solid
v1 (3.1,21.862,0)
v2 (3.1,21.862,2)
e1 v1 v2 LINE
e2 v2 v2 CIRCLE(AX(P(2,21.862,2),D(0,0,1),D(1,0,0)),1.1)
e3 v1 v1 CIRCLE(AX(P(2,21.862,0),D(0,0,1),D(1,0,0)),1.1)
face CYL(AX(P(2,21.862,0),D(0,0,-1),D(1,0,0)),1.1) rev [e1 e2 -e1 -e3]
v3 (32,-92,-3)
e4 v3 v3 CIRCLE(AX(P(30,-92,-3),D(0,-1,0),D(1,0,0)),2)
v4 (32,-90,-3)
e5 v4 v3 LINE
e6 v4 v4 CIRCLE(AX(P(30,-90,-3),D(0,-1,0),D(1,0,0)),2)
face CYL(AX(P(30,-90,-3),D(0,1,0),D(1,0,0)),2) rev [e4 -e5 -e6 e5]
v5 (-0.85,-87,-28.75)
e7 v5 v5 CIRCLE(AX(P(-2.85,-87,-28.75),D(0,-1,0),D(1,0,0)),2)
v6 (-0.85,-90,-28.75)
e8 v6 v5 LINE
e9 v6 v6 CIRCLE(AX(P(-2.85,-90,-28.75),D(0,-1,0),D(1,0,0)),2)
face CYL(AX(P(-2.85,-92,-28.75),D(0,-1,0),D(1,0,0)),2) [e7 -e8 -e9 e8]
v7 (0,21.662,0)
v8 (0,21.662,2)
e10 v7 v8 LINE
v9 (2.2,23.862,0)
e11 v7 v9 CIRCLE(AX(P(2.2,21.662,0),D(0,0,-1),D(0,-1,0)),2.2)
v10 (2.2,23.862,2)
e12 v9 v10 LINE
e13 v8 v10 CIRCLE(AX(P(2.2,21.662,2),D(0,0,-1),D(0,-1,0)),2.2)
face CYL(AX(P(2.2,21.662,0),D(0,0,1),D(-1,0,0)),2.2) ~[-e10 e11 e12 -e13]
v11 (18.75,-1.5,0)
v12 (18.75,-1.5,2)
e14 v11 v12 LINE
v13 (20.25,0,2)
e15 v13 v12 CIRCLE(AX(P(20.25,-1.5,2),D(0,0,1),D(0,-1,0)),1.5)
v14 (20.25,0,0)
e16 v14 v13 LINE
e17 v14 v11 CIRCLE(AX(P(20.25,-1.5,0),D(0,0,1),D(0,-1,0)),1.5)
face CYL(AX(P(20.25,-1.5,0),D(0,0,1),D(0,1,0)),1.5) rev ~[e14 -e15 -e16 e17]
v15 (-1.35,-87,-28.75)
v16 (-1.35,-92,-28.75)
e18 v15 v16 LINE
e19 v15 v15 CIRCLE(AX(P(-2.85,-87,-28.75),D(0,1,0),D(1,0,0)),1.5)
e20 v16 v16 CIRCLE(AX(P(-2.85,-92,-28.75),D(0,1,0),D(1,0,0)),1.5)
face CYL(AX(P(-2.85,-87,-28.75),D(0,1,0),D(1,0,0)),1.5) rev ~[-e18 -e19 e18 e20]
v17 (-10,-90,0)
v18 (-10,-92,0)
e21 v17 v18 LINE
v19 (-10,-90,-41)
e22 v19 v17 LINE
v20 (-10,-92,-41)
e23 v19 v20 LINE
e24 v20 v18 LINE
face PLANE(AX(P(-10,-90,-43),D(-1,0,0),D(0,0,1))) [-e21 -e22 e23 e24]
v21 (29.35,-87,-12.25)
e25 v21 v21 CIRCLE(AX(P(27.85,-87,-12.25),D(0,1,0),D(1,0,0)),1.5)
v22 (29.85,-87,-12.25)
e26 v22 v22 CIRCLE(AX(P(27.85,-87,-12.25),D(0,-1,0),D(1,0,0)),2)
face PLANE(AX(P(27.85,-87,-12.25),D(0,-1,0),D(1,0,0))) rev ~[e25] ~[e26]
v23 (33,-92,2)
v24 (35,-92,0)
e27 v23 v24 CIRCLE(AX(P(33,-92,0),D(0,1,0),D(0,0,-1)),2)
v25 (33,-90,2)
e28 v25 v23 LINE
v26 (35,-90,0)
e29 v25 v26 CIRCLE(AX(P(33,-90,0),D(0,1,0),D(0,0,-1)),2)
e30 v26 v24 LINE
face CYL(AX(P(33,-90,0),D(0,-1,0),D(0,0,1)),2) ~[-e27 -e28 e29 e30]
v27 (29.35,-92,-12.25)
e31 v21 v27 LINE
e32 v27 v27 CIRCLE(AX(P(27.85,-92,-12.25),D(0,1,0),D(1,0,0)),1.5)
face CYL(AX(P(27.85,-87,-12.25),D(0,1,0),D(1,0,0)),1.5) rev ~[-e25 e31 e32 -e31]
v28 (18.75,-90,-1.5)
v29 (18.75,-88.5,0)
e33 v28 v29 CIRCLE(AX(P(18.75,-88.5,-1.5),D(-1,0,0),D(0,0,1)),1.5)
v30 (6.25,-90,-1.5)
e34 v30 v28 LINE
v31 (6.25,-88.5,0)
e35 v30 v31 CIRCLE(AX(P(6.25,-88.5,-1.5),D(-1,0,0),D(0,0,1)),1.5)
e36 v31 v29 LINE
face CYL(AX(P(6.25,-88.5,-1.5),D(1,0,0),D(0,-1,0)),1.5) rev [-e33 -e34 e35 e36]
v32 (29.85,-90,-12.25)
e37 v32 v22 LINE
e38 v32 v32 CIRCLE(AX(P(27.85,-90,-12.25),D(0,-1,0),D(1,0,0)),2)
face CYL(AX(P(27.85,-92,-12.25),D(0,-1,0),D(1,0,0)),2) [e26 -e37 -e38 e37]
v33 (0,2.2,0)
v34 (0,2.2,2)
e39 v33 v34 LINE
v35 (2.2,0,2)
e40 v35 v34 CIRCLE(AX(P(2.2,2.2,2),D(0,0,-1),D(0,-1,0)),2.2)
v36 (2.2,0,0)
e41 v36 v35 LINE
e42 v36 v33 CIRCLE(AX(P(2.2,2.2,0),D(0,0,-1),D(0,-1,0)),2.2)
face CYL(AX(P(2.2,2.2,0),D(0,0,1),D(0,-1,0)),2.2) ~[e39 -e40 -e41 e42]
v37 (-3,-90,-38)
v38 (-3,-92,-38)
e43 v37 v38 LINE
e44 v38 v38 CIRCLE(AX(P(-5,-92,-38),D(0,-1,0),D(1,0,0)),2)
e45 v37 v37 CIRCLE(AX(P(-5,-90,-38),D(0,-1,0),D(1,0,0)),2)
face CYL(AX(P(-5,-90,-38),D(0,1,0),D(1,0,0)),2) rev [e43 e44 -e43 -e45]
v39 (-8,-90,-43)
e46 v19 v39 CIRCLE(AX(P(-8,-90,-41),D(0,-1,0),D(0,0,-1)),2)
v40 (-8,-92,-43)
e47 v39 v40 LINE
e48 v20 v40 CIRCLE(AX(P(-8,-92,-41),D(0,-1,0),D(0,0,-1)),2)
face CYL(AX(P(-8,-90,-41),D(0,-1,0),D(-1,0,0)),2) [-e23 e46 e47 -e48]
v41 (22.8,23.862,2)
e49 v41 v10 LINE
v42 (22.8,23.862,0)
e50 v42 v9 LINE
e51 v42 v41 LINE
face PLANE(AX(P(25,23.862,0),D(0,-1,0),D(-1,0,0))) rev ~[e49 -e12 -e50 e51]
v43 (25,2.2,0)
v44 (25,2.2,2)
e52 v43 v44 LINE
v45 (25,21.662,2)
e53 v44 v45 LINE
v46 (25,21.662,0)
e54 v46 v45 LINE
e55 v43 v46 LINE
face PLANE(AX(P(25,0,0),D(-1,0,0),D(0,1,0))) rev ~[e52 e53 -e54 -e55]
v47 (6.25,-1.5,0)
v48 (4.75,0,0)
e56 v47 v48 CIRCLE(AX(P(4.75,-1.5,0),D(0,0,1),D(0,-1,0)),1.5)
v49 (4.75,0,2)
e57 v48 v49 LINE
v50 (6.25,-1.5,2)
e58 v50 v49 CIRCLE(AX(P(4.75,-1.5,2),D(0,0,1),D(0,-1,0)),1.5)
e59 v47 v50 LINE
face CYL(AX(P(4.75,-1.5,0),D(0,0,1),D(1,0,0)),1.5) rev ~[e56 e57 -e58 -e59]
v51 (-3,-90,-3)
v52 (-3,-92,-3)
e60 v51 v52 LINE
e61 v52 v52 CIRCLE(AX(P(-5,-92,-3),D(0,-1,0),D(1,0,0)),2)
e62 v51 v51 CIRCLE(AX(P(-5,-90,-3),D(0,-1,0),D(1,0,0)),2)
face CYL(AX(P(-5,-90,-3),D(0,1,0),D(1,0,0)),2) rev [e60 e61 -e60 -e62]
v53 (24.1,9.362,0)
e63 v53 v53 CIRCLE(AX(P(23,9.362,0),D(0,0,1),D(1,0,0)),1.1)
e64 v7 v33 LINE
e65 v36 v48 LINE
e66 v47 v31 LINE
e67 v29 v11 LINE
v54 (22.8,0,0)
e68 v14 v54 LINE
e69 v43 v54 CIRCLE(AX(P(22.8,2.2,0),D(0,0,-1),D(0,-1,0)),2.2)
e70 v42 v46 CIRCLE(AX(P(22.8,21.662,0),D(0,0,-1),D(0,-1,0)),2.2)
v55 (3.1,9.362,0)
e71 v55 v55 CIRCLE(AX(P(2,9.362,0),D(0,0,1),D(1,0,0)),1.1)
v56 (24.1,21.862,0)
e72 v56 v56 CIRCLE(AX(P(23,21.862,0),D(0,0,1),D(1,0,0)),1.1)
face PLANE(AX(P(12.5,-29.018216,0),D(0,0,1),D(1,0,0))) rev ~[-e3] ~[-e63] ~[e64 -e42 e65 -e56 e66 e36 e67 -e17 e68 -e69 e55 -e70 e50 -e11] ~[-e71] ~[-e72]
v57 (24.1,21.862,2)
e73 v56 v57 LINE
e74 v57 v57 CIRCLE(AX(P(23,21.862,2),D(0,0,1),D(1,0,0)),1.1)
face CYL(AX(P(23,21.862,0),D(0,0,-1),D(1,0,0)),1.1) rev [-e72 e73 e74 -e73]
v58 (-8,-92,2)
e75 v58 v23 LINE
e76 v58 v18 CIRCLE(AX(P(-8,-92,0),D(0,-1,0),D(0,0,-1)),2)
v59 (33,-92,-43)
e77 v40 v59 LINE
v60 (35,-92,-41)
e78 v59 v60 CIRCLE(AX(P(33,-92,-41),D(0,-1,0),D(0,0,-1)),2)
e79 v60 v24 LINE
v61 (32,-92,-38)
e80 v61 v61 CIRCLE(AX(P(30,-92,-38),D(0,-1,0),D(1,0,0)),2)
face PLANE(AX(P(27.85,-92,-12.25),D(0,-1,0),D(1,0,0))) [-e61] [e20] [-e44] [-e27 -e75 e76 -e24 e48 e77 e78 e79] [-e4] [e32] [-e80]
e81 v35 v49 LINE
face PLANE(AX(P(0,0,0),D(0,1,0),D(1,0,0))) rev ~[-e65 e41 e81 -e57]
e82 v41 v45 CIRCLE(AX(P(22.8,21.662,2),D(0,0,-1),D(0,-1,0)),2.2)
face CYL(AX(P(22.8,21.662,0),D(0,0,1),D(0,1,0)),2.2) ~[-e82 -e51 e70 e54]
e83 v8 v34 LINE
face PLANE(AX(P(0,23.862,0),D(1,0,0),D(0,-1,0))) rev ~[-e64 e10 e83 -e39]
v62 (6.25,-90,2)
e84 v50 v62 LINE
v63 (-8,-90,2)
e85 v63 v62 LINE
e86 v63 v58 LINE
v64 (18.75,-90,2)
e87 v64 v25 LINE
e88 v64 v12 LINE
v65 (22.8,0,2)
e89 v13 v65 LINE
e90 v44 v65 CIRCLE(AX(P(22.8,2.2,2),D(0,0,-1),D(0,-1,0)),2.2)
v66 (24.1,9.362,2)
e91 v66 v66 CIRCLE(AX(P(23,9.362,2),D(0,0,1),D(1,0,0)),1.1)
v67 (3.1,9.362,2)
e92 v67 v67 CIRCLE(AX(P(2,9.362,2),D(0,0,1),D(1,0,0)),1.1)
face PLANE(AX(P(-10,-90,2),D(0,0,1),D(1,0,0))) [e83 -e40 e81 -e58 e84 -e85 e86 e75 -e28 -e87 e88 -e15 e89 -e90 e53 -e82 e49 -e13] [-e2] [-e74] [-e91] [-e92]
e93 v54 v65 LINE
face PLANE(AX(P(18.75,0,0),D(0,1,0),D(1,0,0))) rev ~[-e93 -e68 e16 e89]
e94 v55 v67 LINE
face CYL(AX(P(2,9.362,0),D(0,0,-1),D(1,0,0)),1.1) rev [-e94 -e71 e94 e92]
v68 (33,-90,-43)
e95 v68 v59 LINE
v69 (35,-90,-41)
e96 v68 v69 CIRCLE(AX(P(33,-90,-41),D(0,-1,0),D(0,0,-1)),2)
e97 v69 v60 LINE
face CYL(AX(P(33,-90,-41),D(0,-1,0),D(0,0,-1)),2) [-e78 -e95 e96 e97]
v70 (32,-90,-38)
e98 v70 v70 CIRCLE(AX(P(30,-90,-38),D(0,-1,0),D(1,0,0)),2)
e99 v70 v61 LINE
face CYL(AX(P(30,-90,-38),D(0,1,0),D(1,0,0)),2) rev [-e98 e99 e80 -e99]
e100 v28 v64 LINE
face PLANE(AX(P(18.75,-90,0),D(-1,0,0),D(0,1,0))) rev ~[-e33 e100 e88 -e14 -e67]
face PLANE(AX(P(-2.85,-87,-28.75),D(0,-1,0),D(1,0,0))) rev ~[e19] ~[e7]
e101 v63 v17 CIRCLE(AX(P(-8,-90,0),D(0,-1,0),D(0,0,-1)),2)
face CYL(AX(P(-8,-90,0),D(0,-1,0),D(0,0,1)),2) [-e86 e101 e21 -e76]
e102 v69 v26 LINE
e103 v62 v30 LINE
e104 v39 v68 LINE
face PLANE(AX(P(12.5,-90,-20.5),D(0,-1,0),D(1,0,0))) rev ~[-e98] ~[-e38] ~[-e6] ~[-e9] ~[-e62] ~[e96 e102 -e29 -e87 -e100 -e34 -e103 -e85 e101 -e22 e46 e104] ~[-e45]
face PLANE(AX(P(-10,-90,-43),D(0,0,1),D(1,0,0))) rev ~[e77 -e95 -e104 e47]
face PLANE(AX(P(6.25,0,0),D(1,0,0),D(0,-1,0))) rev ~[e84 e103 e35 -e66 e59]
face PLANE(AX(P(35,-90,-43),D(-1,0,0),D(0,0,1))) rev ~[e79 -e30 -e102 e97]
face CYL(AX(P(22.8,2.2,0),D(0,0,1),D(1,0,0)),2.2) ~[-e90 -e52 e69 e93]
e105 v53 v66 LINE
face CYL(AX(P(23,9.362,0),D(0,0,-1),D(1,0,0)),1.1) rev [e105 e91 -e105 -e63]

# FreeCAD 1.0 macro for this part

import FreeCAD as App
import Part
import Sketcher
from FreeCAD import Vector
Q = App.Units.Quantity


def edges_at(feature, points):
    """Names of the edges that pass closest to the given points."""
    edges = feature.Shape.Edges
    near = lambda p: min(range(len(edges)), key=lambda i: edges[i].distToShape(Part.Vertex(*p))[0])
    return sorted({f"Edge{near(p) + 1}" for p in points})


def add_polygon(sketch, points):
    """Adds a closed chain of lines whose ends are joined by coincident constraints."""
    first, n = sketch.GeometryCount, len(points)
    for a, b in zip(points, points[1:] + points[:1]):
        sketch.addGeometry(Part.LineSegment(App.Vector(*a, 0), App.Vector(*b, 0)), False)
    for i in range(n):
        sketch.addConstraint(Sketcher.Constraint("Coincident", first + i, 2, first + (i + 1) % n, 1))

doc = App.newDocument("Part")
body = doc.addObject("PartDesign::Body", "Body")

# Sketch on XY plane
sketch1 = body.newObject("Sketcher::SketchObject", "Sketch")
sketch1.AttachmentSupport = (doc.getObject("XY_Plane"), [""])
sketch1.MapMode = "FlatFace"
add_polygon(sketch1, [(6.25, 0), (6.25, -90), (18.75, -90), (18.75, 0), (25, 0), (25, 23.862), (0, 23.862), (0, 0)])  # lines 0-7
sketch1.addGeometry(Part.Circle(Vector(2, 9.362, 0), Vector(0, 0, 1), 1.1), False)  # 8
sketch1.addGeometry(Part.Circle(Vector(23, 9.362, 0), Vector(0, 0, 1), 1.1), False)  # 9
sketch1.addGeometry(Part.Circle(Vector(2, 21.862, 0), Vector(0, 0, 1), 1.1), False)  # 10
sketch1.addGeometry(Part.Circle(Vector(23, 21.862, 0), Vector(0, 0, 1), 1.1), False)  # 11
sketch1.addConstraint([
    Sketcher.Constraint("Vertical", 0),
    Sketcher.Constraint("Horizontal", 1),
    Sketcher.Constraint("Vertical", 2),
    Sketcher.Constraint("Horizontal", 3),
    Sketcher.Constraint("Vertical", 4),
    Sketcher.Constraint("Horizontal", 5),
    Sketcher.Constraint("Vertical", 6),
    Sketcher.Constraint("Horizontal", 7),
    Sketcher.Constraint("Coincident", 6, 2, -1, 1),
    Sketcher.Constraint("Equal", 8, 9),
    Sketcher.Constraint("Equal", 9, 10),
    Sketcher.Constraint("Equal", 10, 11),
    Sketcher.Constraint("PointOnObject", 2, 2, -1),
    Sketcher.Constraint("Horizontal", 8, 3, 9, 3),
    Sketcher.Constraint("Horizontal", 10, 3, 11, 3),
    Sketcher.Constraint("Vertical", 8, 3, 10, 3),
    Sketcher.Constraint("Vertical", 9, 3, 11, 3),
    Sketcher.Constraint("Equal", 3, 7),
    Sketcher.Constraint("Diameter", 8, Q("2.2 mm")),
    Sketcher.Constraint("DistanceX", 5, 2, 5, 1, Q("25 mm")),
    Sketcher.Constraint("DistanceY", 0, 2, 0, 1, Q("90 mm")),
    Sketcher.Constraint("DistanceX", 1, 1, 1, 2, Q("12.5 mm")),
    Sketcher.Constraint("DistanceX", -1, 1, 8, 3, Q("2 mm")),
    Sketcher.Constraint("DistanceX", -1, 1, 9, 3, Q("23 mm")),
    Sketcher.Constraint("DistanceY", 11, 3, 4, 2, Q("2 mm")),
    Sketcher.Constraint("DistanceY", 8, 3, 10, 3, Q("12.5 mm")),
    Sketcher.Constraint("DistanceY", 4, 1, 4, 2, Q("23.862 mm")),
])
pad1 = body.newObject("PartDesign::Pad", "Pad")
pad1.Profile = sketch1
pad1.Length = 2
doc.recompute()

fillet = body.newObject("PartDesign::Fillet", "Fillet")
fillet.Base = (pad1, edges_at(pad1, [(0, 0, 1)]))
fillet.Radius = 2.2
doc.recompute()

fillet2 = body.newObject("PartDesign::Fillet", "Fillet001")
fillet2.Base = (fillet, edges_at(fillet, [(0, 23.862, 1)]))
fillet2.Radius = 2.2
doc.recompute()

fillet3 = body.newObject("PartDesign::Fillet", "Fillet002")
fillet3.Base = (fillet2, edges_at(fillet2, [(25, 23.862, 1)]))
fillet3.Radius = 2.2
doc.recompute()

fillet4 = body.newObject("PartDesign::Fillet", "Fillet003")
fillet4.Base = (fillet3, edges_at(fillet3, [(25, 0, 1)]))
fillet4.Radius = 2.2
doc.recompute()

fillet5 = body.newObject("PartDesign::Fillet", "Fillet004")
fillet5.Base = (fillet4, edges_at(fillet4, [(18.75, 0, 1)]))
fillet5.Radius = 1.5
doc.recompute()

fillet6 = body.newObject("PartDesign::Fillet", "Fillet005")
fillet6.Base = (fillet5, edges_at(fillet5, [(6.25, 0, 1)]))
fillet6.Radius = 1.5

# Sketch on XZ plane
sketch2 = body.newObject("Sketcher::SketchObject", "Sketch001")
sketch2.AttachmentSupport = (doc.getObject("XZ_Plane"), [""])
sketch2.MapMode = "FlatFace"
sketch2.AttachmentOffset = App.Placement(Vector(0, 0, 90), App.Rotation())
add_polygon(sketch2, [(-10, 2), (-10, -43), (35, -43), (35, 2)])  # lines 0-3
sketch2.addGeometry(Part.Circle(Vector(-5, -38, 0), Vector(0, 0, 1), 2), False)  # 4
sketch2.addGeometry(Part.Circle(Vector(30, -38, 0), Vector(0, 0, 1), 2), False)  # 5
sketch2.addGeometry(Part.Circle(Vector(-5, -3, 0), Vector(0, 0, 1), 2), False)  # 6
sketch2.addGeometry(Part.Circle(Vector(30, -3, 0), Vector(0, 0, 1), 2), False)  # 7
sketch2.addConstraint([
    Sketcher.Constraint("Vertical", 0),
    Sketcher.Constraint("Horizontal", 1),
    Sketcher.Constraint("Vertical", 2),
    Sketcher.Constraint("Horizontal", 3),
    Sketcher.Constraint("Equal", 4, 5),
    Sketcher.Constraint("Equal", 5, 6),
    Sketcher.Constraint("Equal", 6, 7),
    Sketcher.Constraint("Horizontal", 4, 3, 5, 3),
    Sketcher.Constraint("Horizontal", 6, 3, 7, 3),
    Sketcher.Constraint("Vertical", 4, 3, 6, 3),
    Sketcher.Constraint("Vertical", 5, 3, 7, 3),
    Sketcher.Constraint("Equal", 3, 0),
    Sketcher.Constraint("Diameter", 4, Q("4 mm")),
    Sketcher.Constraint("DistanceX", 1, 1, 1, 2, Q("45 mm")),
    Sketcher.Constraint("DistanceX", 4, 3, -1, 1, Q("5 mm")),
    Sketcher.Constraint("DistanceY", 4, 3, -1, 1, Q("38 mm")),
    Sketcher.Constraint("DistanceX", -1, 1, 5, 3, Q("30 mm")),
    Sketcher.Constraint("DistanceY", 6, 3, -1, 1, Q("3 mm")),
    Sketcher.Constraint("DistanceX", 0, 2, -1, 1, Q("10 mm")),
    Sketcher.Constraint("DistanceY", 0, 2, -1, 1, Q("43 mm")),
])
pad2 = body.newObject("PartDesign::Pad", "Pad001")
pad2.Profile = sketch2
pad2.Length = 2
doc.recompute()

fillet7 = body.newObject("PartDesign::Fillet", "Fillet006")
fillet7.Base = (pad2, edges_at(pad2, [(35, -91, 2)]))
fillet7.Radius = 2
doc.recompute()

fillet8 = body.newObject("PartDesign::Fillet", "Fillet007")
fillet8.Base = (fillet7, edges_at(fillet7, [(-10, -91, 2)]))
fillet8.Radius = 2
doc.recompute()

fillet9 = body.newObject("PartDesign::Fillet", "Fillet008")
fillet9.Base = (fillet8, edges_at(fillet8, [(-10, -91, -43)]))
fillet9.Radius = 2
doc.recompute()

fillet10 = body.newObject("PartDesign::Fillet", "Fillet009")
fillet10.Base = (fillet9, edges_at(fillet9, [(35, -91, -43)]))
fillet10.Radius = 2
doc.recompute()

fillet11 = body.newObject("PartDesign::Fillet", "Fillet010")
fillet11.Base = (fillet10, edges_at(fillet10, [(12.5, -90, 0)]))
fillet11.Radius = 1.5

# Sketch on XZ plane
sketch3 = body.newObject("Sketcher::SketchObject", "Sketch002")
sketch3.AttachmentSupport = (doc.getObject("XZ_Plane"), [""])
sketch3.MapMode = "FlatFace"
sketch3.AttachmentOffset = App.Placement(Vector(0, 0, 92), App.Rotation())
sketch3.addGeometry([
    Part.Circle(Vector(27.85, -12.25, 0), Vector(0, 0, 1), 2),
    Part.Circle(Vector(-2.85, -28.75, 0), Vector(0, 0, 1), 2),
], False)
sketch3.addConstraint([
    Sketcher.Constraint("Equal", 0, 1),
    Sketcher.Constraint("Diameter", 0, Q("4 mm")),
    Sketcher.Constraint("DistanceX", 1, 3, 0, 3, Q("30.7 mm")),
    Sketcher.Constraint("DistanceY", 1, 3, 0, 3, Q("16.5 mm")),
    Sketcher.Constraint("DistanceX", -1, 1, 0, 3, Q("27.85 mm")),
    Sketcher.Constraint("DistanceY", 0, 3, -1, 1, Q("12.25 mm")),
])
pad3 = body.newObject("PartDesign::Pad", "Pad002")
pad3.Profile = sketch3
pad3.Length = 5
pad3.Reversed = True

# Sketch on XZ plane
sketch4 = body.newObject("Sketcher::SketchObject", "Sketch003")
sketch4.AttachmentSupport = (doc.getObject("XZ_Plane"), [""])
sketch4.MapMode = "FlatFace"
sketch4.AttachmentOffset = App.Placement(Vector(0, 0, 87), App.Rotation())
sketch4.addGeometry([
    Part.Circle(Vector(27.85, -12.25, 0), Vector(0, 0, 1), 1.5),
    Part.Circle(Vector(-2.85, -28.75, 0), Vector(0, 0, 1), 1.5),
], False)
sketch4.addConstraint([
    Sketcher.Constraint("Equal", 0, 1),
    Sketcher.Constraint("Diameter", 0, Q("3 mm")),
    Sketcher.Constraint("DistanceX", 1, 3, 0, 3, Q("30.7 mm")),
    Sketcher.Constraint("DistanceY", 1, 3, 0, 3, Q("16.5 mm")),
    Sketcher.Constraint("DistanceX", -1, 1, 0, 3, Q("27.85 mm")),
    Sketcher.Constraint("DistanceY", 0, 3, -1, 1, Q("12.25 mm")),
])
pocket1 = body.newObject("PartDesign::Pocket", "Pocket")
pocket1.Profile = sketch4
pocket1.Type = "ThroughAll"
pocket1.Reversed = True

doc.recompute()
